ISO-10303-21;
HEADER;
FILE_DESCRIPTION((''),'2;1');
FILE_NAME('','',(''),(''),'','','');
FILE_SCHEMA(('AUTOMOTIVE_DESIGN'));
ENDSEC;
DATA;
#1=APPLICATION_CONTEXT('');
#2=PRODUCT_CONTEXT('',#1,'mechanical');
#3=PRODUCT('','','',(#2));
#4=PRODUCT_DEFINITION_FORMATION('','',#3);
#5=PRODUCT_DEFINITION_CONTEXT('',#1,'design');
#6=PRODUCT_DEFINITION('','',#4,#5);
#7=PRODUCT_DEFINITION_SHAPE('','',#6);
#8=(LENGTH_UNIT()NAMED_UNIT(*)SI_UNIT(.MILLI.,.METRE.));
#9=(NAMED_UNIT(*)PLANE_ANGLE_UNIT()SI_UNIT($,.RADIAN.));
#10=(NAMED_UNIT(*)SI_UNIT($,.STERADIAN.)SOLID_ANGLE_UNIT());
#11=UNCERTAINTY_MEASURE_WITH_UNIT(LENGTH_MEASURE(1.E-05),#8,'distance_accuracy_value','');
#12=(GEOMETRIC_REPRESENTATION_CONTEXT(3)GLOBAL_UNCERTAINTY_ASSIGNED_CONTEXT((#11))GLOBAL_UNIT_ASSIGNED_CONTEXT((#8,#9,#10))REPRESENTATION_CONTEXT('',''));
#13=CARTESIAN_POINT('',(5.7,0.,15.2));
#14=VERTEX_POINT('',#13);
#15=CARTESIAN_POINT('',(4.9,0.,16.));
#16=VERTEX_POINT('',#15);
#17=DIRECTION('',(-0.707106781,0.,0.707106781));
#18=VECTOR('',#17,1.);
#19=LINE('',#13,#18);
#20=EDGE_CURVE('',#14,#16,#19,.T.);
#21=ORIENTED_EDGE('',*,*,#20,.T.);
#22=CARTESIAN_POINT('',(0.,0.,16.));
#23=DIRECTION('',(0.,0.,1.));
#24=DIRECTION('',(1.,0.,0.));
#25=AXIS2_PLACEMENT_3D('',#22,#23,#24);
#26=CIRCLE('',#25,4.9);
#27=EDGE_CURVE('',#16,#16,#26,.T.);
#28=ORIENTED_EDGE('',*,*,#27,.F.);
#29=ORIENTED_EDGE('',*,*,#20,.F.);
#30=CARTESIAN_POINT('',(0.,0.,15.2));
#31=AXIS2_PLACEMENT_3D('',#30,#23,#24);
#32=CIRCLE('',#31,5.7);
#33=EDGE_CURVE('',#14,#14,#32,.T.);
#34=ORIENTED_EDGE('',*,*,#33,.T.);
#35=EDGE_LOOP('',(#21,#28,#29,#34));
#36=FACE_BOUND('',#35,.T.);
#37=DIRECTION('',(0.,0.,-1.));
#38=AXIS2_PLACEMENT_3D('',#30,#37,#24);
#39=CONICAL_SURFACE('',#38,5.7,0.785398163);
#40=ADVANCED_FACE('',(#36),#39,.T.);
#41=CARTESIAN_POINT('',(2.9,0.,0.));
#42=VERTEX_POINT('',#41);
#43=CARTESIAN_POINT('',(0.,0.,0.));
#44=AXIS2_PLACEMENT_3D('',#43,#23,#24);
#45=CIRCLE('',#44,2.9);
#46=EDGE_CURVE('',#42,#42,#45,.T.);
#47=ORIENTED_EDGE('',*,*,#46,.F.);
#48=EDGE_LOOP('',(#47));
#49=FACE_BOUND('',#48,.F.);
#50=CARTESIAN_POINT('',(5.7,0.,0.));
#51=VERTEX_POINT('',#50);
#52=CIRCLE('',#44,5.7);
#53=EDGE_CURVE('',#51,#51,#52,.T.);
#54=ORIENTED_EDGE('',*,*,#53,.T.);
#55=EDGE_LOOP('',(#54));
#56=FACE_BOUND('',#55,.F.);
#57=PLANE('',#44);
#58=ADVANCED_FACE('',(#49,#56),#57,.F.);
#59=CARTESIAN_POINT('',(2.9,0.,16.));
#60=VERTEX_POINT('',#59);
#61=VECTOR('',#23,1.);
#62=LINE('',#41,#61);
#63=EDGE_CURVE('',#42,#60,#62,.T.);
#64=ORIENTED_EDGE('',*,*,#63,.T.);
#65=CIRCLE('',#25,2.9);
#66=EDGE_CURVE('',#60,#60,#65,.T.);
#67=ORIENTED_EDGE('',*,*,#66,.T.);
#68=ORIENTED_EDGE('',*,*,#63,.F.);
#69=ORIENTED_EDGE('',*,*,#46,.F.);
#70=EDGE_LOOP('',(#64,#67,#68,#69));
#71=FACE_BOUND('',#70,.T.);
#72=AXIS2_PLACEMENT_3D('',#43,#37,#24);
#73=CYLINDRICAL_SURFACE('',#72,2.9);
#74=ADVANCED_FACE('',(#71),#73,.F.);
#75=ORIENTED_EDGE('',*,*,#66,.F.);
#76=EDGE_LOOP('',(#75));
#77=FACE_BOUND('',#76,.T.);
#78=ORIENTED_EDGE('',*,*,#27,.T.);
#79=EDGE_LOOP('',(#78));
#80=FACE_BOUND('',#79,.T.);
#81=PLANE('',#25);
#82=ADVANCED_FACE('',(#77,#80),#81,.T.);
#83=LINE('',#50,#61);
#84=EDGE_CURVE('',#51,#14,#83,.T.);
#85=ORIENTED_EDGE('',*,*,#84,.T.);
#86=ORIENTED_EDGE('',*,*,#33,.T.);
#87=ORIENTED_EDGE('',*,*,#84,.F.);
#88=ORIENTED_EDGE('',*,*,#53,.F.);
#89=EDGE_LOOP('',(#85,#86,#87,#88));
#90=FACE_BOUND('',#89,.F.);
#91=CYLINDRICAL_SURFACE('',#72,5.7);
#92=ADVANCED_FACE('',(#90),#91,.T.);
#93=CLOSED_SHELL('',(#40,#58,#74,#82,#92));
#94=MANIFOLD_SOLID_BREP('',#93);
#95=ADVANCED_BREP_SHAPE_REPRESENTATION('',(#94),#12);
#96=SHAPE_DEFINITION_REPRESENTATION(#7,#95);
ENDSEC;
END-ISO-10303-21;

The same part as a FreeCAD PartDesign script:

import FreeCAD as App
import Part
import Sketcher


def edges_at(feature, points):
    """Names of the edges that pass closest to the given points."""
    edges = feature.Shape.Edges
    near = lambda p: min(range(len(edges)), key=lambda i: edges[i].distToShape(Part.Vertex(*p))[0])
    return sorted({f"Edge{near(p) + 1}" for p in points})

doc = App.newDocument("Part")
body = doc.addObject("PartDesign::Body", "Body")

# Sketch on XY plane
sketch1 = doc.addObject("Sketcher::SketchObject", "Sketch")
body.addObject(sketch1)
sketch1.AttachmentSupport = (doc.XY_Plane, [""])
sketch1.MapMode = "FlatFace"
sketch1.addGeometry(Part.Circle(App.Vector(0, 0, 0), App.Vector(0, 0, 1), 6), False)
sketch1.addConstraint([
    Sketcher.Constraint("Coincident", 0, 3, -1, 1),
    Sketcher.Constraint("Diameter", 0, 11.4),
])
pad1 = doc.addObject("PartDesign::Pad", "Pad")
body.addObject(pad1)
pad1.Profile = sketch1
pad1.Length = 16
doc.recompute()

chamfer = doc.addObject("PartDesign::Chamfer", "Chamfer")
body.addObject(chamfer)
chamfer.Base = (pad1, edges_at(pad1, [(-5.7, 0, 16)]))
chamfer.Size = 0.8

# Sketch on XY plane
sketch2 = doc.addObject("Sketcher::SketchObject", "Sketch001")
body.addObject(sketch2)
sketch2.AttachmentSupport = (doc.XY_Plane, [""])
sketch2.MapMode = "FlatFace"
sketch2.addGeometry(Part.Circle(App.Vector(0, 0, 0), App.Vector(0, 0, 1), 2.9), False)
sketch2.addConstraint([
    Sketcher.Constraint("Coincident", 0, 3, -1, 1),
    Sketcher.Constraint("Diameter", 0, 5.8),
])
pocket1 = doc.addObject("PartDesign::Pocket", "Pocket")
body.addObject(pocket1)
pocket1.Profile = sketch2
pocket1.Length = 16
pocket1.Reversed = True

doc.recompute()
